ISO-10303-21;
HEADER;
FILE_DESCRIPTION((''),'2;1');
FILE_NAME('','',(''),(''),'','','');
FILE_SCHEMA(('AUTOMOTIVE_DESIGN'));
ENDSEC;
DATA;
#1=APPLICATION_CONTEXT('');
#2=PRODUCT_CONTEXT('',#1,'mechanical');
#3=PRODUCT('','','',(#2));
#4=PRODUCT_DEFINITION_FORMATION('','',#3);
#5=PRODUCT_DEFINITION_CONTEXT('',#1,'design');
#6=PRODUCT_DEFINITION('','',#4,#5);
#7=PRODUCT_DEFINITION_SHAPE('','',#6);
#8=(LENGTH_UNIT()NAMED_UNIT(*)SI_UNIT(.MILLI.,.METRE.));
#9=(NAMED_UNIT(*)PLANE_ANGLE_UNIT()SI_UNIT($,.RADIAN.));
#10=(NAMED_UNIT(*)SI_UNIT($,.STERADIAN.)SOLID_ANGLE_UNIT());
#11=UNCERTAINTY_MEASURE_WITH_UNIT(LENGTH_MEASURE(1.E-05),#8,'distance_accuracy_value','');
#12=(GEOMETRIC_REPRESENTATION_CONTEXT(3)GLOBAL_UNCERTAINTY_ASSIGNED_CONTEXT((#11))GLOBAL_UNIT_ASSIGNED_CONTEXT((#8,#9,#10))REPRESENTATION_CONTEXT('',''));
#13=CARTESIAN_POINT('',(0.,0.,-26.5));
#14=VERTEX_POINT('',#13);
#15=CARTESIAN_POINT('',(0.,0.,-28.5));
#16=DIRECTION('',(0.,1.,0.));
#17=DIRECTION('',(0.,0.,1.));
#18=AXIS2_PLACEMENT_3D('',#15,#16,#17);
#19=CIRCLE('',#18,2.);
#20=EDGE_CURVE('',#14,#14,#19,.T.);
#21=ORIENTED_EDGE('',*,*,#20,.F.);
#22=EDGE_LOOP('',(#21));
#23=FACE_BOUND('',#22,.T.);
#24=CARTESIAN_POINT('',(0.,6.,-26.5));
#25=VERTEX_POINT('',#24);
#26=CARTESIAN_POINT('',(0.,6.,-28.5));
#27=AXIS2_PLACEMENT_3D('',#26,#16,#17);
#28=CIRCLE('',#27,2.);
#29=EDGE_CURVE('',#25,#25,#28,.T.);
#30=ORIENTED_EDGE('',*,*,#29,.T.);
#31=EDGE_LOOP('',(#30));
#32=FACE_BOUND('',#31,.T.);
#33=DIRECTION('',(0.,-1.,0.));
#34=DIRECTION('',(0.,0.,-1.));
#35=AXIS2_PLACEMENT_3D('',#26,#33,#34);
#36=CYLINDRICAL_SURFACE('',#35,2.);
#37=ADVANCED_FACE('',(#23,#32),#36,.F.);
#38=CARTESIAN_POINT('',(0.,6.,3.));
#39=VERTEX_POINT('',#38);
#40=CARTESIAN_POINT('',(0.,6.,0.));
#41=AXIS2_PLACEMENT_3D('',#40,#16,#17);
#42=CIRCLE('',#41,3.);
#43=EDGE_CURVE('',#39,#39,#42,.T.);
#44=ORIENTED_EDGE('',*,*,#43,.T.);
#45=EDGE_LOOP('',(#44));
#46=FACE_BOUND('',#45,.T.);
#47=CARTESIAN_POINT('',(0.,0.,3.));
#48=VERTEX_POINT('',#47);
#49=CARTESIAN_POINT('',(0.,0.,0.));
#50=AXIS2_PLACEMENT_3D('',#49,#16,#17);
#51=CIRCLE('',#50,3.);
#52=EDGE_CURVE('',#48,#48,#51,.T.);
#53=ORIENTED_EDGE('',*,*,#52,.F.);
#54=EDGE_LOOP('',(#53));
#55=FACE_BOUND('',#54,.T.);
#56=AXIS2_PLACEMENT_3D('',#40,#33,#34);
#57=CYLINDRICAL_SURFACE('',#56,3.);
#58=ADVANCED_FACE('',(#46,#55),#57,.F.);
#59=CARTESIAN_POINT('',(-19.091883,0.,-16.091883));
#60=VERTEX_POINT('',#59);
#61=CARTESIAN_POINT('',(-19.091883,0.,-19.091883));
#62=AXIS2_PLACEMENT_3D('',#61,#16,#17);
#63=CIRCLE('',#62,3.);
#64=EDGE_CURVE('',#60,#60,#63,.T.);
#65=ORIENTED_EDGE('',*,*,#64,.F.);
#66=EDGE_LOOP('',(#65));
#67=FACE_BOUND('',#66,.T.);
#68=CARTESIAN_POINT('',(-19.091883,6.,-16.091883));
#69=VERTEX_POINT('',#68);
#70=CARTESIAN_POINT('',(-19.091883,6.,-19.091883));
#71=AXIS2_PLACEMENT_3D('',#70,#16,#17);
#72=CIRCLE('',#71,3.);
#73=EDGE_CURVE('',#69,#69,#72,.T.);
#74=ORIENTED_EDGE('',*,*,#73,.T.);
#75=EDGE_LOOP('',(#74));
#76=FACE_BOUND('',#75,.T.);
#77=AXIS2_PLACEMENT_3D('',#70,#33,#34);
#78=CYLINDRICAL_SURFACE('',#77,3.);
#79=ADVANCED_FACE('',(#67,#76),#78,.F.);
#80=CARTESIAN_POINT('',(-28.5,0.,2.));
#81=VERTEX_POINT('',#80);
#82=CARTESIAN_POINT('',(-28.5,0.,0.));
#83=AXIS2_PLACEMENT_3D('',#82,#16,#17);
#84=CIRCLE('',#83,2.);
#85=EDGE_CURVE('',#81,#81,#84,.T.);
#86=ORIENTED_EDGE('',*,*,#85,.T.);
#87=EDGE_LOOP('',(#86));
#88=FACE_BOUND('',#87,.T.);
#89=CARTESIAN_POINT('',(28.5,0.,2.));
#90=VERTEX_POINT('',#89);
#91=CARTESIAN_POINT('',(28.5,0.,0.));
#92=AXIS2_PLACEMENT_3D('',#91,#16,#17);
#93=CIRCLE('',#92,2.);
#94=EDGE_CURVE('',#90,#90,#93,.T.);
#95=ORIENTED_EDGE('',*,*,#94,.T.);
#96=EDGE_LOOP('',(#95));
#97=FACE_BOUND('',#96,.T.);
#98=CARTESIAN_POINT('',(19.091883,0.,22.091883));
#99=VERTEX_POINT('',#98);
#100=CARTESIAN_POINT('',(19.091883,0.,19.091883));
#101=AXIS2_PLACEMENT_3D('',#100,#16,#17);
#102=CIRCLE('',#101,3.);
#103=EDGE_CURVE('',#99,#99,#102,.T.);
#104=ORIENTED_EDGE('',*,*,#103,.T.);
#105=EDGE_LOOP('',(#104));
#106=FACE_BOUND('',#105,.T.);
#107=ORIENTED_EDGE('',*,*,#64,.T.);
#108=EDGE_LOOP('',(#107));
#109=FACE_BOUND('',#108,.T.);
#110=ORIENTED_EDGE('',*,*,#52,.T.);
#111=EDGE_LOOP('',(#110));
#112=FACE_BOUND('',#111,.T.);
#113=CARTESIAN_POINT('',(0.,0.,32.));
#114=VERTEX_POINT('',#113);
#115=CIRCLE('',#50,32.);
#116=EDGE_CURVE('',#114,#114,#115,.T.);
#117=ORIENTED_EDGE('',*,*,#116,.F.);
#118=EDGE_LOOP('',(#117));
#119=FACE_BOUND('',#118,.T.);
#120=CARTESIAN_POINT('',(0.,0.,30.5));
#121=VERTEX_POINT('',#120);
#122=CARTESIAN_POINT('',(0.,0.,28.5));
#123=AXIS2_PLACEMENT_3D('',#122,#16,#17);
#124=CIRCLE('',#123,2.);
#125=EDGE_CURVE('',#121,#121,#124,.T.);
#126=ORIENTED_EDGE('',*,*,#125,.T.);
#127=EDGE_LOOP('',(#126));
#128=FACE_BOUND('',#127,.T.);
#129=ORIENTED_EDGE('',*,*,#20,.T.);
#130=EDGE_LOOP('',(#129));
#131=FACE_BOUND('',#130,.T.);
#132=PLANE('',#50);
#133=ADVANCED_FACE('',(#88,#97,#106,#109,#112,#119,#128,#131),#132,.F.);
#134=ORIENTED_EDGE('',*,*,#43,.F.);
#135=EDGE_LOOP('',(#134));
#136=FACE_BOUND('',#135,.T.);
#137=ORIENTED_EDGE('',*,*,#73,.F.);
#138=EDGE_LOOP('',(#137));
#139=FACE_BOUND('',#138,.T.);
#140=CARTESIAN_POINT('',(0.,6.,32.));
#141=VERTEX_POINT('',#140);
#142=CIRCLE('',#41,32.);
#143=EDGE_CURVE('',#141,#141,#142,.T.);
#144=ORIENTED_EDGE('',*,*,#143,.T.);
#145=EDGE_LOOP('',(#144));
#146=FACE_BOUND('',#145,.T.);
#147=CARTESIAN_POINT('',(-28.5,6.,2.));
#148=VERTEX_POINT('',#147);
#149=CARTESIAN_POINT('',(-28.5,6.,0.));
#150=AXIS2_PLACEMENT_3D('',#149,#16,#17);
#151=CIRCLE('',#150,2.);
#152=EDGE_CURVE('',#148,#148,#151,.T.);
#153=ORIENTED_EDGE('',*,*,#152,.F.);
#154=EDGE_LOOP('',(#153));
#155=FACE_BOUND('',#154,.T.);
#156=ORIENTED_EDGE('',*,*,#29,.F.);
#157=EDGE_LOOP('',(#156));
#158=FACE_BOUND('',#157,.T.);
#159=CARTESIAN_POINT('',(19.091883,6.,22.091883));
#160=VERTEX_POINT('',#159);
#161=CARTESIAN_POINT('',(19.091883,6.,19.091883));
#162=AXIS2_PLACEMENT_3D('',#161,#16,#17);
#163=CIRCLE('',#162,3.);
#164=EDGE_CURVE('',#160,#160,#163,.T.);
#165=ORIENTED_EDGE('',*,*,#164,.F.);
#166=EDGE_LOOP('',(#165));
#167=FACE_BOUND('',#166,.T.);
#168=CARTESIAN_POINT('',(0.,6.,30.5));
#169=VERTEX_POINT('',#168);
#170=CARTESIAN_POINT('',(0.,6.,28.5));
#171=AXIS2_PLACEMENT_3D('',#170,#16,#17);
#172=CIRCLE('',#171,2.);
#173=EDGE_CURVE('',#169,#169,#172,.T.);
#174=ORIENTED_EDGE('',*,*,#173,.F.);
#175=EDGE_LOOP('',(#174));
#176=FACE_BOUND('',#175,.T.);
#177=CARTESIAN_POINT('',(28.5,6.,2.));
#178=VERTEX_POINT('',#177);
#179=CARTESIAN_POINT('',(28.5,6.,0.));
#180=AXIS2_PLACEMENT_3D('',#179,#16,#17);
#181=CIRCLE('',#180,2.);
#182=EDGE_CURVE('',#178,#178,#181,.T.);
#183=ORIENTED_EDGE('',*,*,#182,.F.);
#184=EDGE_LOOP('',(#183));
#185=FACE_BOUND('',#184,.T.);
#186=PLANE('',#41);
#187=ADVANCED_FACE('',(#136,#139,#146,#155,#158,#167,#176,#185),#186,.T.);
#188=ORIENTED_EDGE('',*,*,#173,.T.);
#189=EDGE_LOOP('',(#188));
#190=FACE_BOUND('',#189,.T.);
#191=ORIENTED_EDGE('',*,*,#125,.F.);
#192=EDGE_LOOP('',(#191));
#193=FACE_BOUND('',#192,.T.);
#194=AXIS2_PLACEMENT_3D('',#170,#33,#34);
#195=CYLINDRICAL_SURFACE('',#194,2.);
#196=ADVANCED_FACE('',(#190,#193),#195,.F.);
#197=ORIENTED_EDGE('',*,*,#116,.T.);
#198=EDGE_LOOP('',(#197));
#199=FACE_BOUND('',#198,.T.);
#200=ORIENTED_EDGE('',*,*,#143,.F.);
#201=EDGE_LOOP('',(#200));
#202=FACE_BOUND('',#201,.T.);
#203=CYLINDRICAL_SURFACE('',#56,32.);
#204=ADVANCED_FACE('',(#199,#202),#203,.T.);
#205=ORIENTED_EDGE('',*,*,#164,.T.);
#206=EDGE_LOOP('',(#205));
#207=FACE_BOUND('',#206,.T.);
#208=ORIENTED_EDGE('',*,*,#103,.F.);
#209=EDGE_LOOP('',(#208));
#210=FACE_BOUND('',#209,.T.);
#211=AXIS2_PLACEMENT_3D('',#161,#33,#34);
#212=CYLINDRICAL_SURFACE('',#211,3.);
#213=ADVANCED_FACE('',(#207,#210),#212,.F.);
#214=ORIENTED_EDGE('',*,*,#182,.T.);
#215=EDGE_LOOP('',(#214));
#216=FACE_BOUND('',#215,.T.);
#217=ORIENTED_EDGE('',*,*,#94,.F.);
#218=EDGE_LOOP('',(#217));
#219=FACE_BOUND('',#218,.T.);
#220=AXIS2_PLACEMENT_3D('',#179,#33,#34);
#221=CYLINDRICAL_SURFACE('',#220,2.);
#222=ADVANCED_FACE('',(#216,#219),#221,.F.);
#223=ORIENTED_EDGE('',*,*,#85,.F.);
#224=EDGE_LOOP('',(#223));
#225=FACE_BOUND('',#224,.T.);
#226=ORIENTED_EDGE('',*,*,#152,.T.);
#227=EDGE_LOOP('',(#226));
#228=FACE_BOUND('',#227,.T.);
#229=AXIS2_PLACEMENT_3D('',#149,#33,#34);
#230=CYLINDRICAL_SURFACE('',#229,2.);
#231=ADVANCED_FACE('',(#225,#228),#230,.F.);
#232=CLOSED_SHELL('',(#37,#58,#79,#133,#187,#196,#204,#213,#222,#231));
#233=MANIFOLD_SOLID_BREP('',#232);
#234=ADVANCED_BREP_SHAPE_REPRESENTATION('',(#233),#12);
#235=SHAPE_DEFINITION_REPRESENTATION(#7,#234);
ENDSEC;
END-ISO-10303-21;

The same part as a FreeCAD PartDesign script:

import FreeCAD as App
import Part
import Sketcher

V = App.Vector
Q = App.Units.Quantity

doc = App.newDocument("Part")
params = doc.addObject("Spreadsheet::Sheet", "Params")
for row, (alias, value) in enumerate([
    ("sketch1_diameter", "64 mm"),
    ("sketch1_diameter2", "6 mm"),
    ("sketch1_diameter3", "4 mm"),
    ("pad1_length", "6 mm"),
], start=1):
    params.set(f"A{row}", alias)
    params.set(f"B{row}", "=" + value)
    params.setAlias(f"B{row}", alias)

body = doc.addObject("PartDesign::Body", "Body")

# Sketch on XZ plane
sketch1 = body.newObject("Sketcher::SketchObject", "Sketch")
sketch1.AttachmentSupport = (doc.getObject("XZ_Plane"), [""])
sketch1.MapMode = "FlatFace"
sketch1.addGeometry(Part.Circle(V(0, 0, 0), V(0, 0, 1), 32), False)
sketch1.addGeometry(Part.Circle(V(-19.1, -19.1, 0), V(0, 0, 1), 3), False)
sketch1.addGeometry(Part.Circle(V(0, -28.5, 0), V(0, 0, 1), 2), False)
sketch1.addGeometry(Part.Circle(V(-28.5, 0, 0), V(0, 0, 1), 2), False)
sketch1.addGeometry(Part.Circle(V(28.5, 0, 0), V(0, 0, 1), 2), False)
sketch1.addGeometry(Part.Circle(V(0, 0, 0), V(0, 0, 1), 3), False)
sketch1.addGeometry(Part.Circle(V(0, 28.5, 0), V(0, 0, 1), 2), False)
sketch1.addGeometry(Part.Circle(V(19.1, 19.1, 0), V(0, 0, 1), 3), False)
sketch1.addConstraint(Sketcher.Constraint("Coincident", 0, 3, -1, 1))
sketch1.addConstraint(Sketcher.Constraint("Coincident", 5, 3, -1, 1))
sketch1.addConstraint(Sketcher.Constraint("Equal", 2, 3))
sketch1.addConstraint(Sketcher.Constraint("Equal", 3, 4))
sketch1.addConstraint(Sketcher.Constraint("Equal", 1, 5))
sketch1.addConstraint(Sketcher.Constraint("Equal", 4, 6))
sketch1.addConstraint(Sketcher.Constraint("Equal", 5, 7))
sketch1.addConstraint(Sketcher.Constraint("Symmetric", 3, 3, 4, 3, -1, 1))
sketch1.addConstraint(Sketcher.Constraint("Symmetric", 2, 3, 6, 3, -1, 1))
sketch1.addConstraint(Sketcher.Constraint("Symmetric", 1, 3, 7, 3, -1, 1))
sketch1.addConstraint(Sketcher.Constraint("PointOnObject", 2, 3, -2))
sketch1.addConstraint(Sketcher.Constraint("PointOnObject", 3, 3, -1))
sketch1.addConstraint(Sketcher.Constraint("Diameter", 0, Q("64 mm")))
sketch1.addConstraint(Sketcher.Constraint("Diameter", 1, Q("6 mm")))
sketch1.addConstraint(Sketcher.Constraint("Diameter", 2, Q("4 mm")))
sketch1.addConstraint(Sketcher.Constraint("DistanceX", 3, 3, 4, 3, Q("57 mm")))
sketch1.addConstraint(Sketcher.Constraint("DistanceY", 2, 3, -1, 1, Q("28.5 mm")))
sketch1.addConstraint(Sketcher.Constraint("DistanceX", 1, 3, -1, 1, Q("19.091883 mm")))
sketch1.addConstraint(Sketcher.Constraint("DistanceY", 1, 3, -1, 1, Q("19.091883 mm")))
sketch1.setExpression("Constraints[12]", "Params.sketch1_diameter")
sketch1.setExpression("Constraints[13]", "Params.sketch1_diameter2")
sketch1.setExpression("Constraints[14]", "Params.sketch1_diameter3")
pad1 = body.newObject("PartDesign::Pad", "Pad")
pad1.Profile = sketch1
pad1.setExpression("Length", "Params.pad1_length")
pad1.Reversed = True

doc.recompute()
